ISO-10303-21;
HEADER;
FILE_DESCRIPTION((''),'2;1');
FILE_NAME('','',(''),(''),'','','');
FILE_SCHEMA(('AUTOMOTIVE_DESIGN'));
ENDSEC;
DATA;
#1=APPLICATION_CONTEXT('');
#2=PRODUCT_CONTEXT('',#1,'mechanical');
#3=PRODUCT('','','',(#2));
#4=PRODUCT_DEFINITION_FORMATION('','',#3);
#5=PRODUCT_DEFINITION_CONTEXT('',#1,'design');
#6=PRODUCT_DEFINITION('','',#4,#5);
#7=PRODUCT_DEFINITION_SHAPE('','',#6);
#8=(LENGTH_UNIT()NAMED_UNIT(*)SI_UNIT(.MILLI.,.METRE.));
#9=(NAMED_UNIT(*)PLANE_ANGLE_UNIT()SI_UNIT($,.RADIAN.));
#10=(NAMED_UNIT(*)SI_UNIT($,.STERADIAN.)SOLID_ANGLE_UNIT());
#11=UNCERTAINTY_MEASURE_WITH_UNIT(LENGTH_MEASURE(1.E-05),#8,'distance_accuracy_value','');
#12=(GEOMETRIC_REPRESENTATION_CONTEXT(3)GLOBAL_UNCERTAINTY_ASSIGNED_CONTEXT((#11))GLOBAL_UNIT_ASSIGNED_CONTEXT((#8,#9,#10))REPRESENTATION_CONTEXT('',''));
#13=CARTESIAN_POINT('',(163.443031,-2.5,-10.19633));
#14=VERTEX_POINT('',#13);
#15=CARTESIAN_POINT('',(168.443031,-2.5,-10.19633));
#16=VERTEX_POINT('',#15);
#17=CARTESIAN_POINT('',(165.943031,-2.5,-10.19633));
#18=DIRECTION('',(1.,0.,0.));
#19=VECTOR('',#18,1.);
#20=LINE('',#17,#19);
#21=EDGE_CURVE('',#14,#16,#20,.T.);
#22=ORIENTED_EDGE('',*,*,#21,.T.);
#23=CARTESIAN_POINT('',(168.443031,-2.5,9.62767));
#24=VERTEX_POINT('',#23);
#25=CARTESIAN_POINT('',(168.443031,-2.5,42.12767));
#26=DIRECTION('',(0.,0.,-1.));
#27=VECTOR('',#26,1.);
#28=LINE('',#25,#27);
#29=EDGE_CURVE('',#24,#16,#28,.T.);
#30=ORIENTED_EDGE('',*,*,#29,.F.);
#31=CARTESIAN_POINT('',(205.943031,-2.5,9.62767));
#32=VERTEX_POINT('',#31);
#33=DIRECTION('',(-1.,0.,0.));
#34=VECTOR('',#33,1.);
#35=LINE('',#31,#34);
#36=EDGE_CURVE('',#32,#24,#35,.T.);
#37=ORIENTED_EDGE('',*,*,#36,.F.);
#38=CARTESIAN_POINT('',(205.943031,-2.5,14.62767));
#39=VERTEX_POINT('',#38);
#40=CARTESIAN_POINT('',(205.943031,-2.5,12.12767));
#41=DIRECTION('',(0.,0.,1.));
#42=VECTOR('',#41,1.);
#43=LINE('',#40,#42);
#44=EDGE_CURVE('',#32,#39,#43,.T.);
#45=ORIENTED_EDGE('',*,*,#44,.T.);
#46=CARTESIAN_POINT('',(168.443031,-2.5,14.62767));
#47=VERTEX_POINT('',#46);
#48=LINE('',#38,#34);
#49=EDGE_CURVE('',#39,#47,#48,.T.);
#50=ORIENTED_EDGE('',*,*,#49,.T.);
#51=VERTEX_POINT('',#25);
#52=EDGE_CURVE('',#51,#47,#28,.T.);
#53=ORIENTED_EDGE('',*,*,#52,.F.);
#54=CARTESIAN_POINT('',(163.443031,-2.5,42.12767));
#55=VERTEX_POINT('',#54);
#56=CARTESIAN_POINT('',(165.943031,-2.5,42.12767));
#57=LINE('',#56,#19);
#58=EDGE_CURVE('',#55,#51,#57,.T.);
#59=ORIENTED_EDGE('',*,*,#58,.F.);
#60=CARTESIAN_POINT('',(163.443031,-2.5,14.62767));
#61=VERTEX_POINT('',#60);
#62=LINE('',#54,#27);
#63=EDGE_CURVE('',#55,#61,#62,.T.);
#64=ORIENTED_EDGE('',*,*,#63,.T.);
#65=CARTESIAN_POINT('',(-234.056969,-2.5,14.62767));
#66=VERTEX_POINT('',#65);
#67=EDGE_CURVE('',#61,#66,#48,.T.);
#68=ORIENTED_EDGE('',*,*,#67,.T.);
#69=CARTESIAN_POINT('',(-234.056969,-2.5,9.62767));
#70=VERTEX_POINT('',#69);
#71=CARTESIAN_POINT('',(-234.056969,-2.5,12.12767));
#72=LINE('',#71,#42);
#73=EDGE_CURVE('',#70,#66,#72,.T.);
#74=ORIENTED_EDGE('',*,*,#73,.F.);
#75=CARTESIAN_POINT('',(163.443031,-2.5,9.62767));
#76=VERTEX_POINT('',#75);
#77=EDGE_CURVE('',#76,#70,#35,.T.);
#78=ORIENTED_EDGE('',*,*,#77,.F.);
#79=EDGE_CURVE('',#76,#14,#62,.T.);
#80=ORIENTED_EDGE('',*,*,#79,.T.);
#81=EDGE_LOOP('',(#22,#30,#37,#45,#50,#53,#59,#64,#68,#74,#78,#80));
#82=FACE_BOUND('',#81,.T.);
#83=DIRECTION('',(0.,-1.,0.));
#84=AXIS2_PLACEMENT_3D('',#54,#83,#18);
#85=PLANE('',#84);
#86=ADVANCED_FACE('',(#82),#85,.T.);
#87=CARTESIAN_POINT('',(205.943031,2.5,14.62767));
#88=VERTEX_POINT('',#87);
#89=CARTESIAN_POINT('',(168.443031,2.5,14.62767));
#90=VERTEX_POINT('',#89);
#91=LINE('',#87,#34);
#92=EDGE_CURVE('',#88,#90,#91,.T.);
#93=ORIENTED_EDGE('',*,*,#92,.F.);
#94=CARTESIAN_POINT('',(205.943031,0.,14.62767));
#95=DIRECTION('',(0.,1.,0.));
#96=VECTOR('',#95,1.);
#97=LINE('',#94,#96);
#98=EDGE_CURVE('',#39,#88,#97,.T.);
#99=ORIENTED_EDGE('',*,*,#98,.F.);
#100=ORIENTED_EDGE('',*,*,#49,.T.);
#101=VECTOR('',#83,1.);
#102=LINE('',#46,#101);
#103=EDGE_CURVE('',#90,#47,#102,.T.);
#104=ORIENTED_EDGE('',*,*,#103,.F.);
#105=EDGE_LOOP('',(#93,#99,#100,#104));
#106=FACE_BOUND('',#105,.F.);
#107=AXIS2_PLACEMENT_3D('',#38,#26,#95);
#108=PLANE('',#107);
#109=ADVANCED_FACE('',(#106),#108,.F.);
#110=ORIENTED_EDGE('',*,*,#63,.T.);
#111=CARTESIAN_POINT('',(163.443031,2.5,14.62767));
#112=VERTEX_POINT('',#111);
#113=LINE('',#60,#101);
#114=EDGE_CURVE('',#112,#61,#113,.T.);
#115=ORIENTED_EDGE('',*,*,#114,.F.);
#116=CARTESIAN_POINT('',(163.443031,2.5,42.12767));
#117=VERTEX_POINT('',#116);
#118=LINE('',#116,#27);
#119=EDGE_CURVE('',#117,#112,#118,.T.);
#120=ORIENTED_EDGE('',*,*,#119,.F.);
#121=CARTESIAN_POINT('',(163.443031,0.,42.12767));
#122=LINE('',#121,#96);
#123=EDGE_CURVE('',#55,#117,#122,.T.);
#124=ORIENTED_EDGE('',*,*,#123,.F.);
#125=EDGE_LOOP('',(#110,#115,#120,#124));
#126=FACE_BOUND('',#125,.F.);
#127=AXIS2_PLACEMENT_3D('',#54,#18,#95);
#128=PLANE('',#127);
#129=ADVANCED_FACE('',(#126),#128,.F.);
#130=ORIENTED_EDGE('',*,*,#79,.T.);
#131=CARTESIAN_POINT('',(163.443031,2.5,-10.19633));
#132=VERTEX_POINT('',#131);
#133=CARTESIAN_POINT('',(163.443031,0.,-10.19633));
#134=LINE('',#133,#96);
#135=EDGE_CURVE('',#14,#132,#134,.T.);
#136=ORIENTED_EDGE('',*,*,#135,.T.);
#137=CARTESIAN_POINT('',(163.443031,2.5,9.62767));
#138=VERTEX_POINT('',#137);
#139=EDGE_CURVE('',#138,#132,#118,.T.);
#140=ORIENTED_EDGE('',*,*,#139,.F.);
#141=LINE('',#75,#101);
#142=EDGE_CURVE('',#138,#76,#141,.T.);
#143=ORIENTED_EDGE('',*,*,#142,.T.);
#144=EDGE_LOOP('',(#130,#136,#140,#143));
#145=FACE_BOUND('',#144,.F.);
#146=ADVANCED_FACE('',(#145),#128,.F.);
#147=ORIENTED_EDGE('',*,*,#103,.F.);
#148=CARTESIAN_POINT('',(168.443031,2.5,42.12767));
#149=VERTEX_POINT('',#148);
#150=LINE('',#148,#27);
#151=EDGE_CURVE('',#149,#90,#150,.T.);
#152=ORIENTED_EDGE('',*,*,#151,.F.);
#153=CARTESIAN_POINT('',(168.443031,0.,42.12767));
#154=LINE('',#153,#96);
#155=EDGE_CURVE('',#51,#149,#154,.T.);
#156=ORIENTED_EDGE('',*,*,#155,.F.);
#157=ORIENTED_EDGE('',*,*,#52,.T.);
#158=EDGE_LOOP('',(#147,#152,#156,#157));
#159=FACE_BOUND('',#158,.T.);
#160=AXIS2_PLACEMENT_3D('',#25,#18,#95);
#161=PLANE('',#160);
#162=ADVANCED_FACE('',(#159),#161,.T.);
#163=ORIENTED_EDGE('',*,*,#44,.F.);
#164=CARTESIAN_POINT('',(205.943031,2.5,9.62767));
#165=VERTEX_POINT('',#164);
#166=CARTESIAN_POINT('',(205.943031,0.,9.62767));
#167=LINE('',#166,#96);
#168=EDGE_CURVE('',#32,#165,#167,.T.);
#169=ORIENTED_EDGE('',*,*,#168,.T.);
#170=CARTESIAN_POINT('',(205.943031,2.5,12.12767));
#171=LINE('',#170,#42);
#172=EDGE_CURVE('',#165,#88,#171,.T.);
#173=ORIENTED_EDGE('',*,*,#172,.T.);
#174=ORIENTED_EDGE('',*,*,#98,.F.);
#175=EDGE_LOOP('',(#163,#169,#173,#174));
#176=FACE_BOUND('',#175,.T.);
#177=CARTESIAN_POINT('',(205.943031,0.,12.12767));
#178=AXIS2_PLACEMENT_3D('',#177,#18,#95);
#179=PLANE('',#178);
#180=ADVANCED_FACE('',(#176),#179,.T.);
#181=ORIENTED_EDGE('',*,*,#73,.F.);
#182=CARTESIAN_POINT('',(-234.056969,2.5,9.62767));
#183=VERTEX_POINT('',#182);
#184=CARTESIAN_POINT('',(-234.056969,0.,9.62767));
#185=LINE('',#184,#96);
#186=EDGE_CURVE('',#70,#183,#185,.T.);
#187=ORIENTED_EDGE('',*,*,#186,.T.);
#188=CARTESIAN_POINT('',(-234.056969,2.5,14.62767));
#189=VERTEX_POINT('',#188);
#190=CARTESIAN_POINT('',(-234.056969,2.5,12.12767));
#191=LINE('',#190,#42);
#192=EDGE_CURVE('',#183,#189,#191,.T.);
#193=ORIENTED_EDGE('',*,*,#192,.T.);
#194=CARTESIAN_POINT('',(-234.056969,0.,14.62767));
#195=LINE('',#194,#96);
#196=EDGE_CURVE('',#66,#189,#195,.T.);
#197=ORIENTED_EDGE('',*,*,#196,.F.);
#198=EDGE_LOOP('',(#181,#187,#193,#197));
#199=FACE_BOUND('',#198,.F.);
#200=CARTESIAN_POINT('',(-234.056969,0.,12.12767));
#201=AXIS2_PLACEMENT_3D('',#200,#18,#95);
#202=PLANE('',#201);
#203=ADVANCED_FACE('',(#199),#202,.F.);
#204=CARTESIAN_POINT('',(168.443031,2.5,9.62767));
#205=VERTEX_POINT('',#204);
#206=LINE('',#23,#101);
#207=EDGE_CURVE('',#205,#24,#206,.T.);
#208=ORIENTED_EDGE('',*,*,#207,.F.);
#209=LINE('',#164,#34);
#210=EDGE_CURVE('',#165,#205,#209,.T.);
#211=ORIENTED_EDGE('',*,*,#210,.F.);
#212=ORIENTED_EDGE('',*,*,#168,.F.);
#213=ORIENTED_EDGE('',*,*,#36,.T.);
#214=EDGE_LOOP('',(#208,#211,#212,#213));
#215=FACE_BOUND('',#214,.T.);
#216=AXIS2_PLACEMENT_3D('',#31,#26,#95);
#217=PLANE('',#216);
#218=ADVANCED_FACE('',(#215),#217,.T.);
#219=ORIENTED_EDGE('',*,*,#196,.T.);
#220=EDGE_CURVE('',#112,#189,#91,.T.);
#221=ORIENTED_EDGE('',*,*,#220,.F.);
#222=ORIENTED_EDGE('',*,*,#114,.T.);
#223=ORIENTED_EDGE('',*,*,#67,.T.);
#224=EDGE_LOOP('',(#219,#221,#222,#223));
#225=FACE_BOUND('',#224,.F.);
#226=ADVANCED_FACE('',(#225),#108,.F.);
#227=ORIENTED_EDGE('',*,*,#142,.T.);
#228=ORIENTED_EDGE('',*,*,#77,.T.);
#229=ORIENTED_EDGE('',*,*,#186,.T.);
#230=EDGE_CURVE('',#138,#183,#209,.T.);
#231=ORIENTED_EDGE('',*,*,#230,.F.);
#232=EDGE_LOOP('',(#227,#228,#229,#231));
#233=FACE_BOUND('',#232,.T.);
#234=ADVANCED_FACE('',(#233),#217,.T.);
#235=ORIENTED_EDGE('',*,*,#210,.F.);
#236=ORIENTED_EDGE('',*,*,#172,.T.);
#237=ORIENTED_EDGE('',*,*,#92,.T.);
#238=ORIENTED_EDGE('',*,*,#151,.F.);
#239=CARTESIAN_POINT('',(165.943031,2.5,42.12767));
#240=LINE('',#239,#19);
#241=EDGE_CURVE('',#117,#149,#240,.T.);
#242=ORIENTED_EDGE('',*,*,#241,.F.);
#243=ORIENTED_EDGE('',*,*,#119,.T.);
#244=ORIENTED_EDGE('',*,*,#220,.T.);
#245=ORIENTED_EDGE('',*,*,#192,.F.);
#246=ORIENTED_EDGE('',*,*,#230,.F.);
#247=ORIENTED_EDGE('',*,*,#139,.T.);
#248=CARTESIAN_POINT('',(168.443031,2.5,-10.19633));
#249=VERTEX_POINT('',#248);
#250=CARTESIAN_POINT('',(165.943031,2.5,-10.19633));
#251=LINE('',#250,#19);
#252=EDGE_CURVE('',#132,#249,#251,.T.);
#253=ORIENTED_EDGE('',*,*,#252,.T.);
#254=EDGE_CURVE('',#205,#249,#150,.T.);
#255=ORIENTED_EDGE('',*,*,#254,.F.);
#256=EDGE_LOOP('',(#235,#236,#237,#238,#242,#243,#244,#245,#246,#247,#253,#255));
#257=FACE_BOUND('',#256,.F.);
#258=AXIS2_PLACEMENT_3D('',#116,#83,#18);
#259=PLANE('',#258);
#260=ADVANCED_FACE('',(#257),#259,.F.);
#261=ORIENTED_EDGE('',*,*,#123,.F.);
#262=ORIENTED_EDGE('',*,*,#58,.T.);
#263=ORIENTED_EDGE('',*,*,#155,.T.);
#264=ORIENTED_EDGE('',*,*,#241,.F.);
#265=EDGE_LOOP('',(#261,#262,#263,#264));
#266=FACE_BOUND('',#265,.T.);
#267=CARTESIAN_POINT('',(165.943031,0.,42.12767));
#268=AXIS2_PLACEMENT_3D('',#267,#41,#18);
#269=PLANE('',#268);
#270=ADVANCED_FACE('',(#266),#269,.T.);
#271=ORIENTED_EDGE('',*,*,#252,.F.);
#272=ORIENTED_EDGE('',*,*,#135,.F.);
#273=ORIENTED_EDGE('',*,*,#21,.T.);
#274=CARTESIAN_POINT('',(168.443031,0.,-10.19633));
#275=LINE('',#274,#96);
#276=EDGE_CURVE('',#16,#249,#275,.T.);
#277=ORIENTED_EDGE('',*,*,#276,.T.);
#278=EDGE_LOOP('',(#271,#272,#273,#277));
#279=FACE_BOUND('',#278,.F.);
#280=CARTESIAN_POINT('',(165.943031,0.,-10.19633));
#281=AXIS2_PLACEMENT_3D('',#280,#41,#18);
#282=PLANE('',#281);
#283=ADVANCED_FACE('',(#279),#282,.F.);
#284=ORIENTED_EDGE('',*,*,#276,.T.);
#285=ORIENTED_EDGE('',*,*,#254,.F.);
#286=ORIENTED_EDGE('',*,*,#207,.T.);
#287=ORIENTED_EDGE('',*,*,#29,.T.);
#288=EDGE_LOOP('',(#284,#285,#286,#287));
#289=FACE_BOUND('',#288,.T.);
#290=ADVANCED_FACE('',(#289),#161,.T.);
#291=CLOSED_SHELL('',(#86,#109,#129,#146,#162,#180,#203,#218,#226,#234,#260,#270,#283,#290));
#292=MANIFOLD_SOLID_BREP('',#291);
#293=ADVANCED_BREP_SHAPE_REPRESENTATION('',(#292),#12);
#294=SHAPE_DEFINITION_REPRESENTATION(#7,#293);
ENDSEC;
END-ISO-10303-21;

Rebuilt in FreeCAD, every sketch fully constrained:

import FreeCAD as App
import Part
import Sketcher
from FreeCAD import Vector
Q = App.Units.Quantity


def add_polygon(sketch, points):
    """Adds a closed chain of lines whose ends are joined by coincident constraints."""
    first, n = sketch.GeometryCount, len(points)
    for a, b in zip(points, points[1:] + points[:1]):
        sketch.addGeometry(Part.LineSegment(App.Vector(*a, 0), App.Vector(*b, 0)), False)
    for i in range(n):
        sketch.addConstraint(Sketcher.Constraint("Coincident", first + i, 2, first + (i + 1) % n, 1))

doc = App.newDocument("Part")
body = doc.addObject("PartDesign::Body", "Body")

sketch1 = body.newObject("Sketcher::SketchObject", "Sketch")
sketch1.AttachmentSupport = (doc.getObject("YZ_Plane"), [""])
sketch1.MapMode = "FlatFace"
sketch1.AttachmentOffset = App.Placement(Vector(0, 0, 205.943031), App.Rotation())
add_polygon(sketch1, [(-2.5, 14.62767), (-2.5, 9.62767), (2.5, 9.62767), (2.5, 14.62767)])
sketch1.addConstraint([
    Sketcher.Constraint("Vertical", 0),
    Sketcher.Constraint("Horizontal", 1),
    Sketcher.Constraint("Vertical", 2),
    Sketcher.Constraint("Horizontal", 3),
    Sketcher.Constraint("Equal", 3, 0),
    Sketcher.Constraint("DistanceX", 1, 1, 1, 2, Q("5 mm")),
    Sketcher.Constraint("DistanceX", 0, 2, -1, 1, Q("2.5 mm")),
    Sketcher.Constraint("DistanceY", -1, 1, 0, 2, Q("9.62767 mm")),
])
pad1 = body.newObject("PartDesign::Pad", "Pad")
pad1.Profile = sketch1
pad1.Length = 440
pad1.Reversed = True

sketch2 = body.newObject("Sketcher::SketchObject", "Sketch001")
sketch2.AttachmentSupport = (doc.getObject("XY_Plane"), [""])
sketch2.MapMode = "FlatFace"
sketch2.AttachmentOffset = App.Placement(Vector(0, 0, 42.12767), App.Rotation())
add_polygon(sketch2, [(163.443031, 2.5), (163.443031, -2.5), (168.443031, -2.5), (168.443031, 2.5)])
sketch2.addConstraint([
    Sketcher.Constraint("Vertical", 0),
    Sketcher.Constraint("Horizontal", 1),
    Sketcher.Constraint("Vertical", 2),
    Sketcher.Constraint("Horizontal", 3),
    Sketcher.Constraint("Equal", 3, 0),
    Sketcher.Constraint("DistanceX", 1, 1, 1, 2, Q("5 mm")),
    Sketcher.Constraint("DistanceY", 0, 2, -1, 1, Q("2.5 mm")),
    Sketcher.Constraint("DistanceX", -1, 1, 0, 2, Q("163.443031 mm")),
])
pad2 = body.newObject("PartDesign::Pad", "Pad001")
pad2.Profile = sketch2
pad2.Length = 52.324
pad2.Reversed = True

doc.recompute()
